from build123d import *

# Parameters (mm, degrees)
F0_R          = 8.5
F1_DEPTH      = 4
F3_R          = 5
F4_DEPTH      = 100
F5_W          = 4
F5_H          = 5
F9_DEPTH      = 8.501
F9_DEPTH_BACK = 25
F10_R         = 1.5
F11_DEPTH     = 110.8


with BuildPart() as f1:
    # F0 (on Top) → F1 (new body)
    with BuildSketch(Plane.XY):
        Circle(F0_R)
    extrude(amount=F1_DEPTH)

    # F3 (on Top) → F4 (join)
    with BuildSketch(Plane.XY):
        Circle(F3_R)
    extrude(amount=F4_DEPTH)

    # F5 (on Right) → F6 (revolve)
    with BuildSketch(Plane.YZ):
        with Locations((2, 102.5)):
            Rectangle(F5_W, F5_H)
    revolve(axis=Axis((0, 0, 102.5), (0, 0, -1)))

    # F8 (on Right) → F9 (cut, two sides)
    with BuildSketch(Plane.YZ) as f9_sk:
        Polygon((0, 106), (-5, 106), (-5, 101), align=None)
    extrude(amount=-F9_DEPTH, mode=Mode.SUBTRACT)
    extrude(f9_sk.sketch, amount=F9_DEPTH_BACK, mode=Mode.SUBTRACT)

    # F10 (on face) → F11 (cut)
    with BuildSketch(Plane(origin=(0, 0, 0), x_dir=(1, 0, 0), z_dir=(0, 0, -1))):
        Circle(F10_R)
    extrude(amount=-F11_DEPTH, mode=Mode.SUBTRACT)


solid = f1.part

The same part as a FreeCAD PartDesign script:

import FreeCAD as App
import Part
import Sketcher
from FreeCAD import Vector
Q = App.Units.Quantity

doc = App.newDocument("Part")
body = doc.addObject("PartDesign::Body", "Body")

sketch1 = body.newObject("Sketcher::SketchObject", "Sketch")
sketch1.AttachmentSupport = (doc.getObject("XY_Plane"), [""])
sketch1.MapMode = "FlatFace"
sketch1.addGeometry(Part.Circle(Vector(0, 0, 0), Vector(0, 0, 1), 8.5), False)
sketch1.addConstraint([
    Sketcher.Constraint("Coincident", 0, 3, -1, 1),
    Sketcher.Constraint("Diameter", 0, Q("17 mm")),
])
pad1 = body.newObject("PartDesign::Pad", "Pad")
pad1.Profile = sketch1
pad1.Length = 4

sketch2 = body.newObject("Sketcher::SketchObject", "Sketch001")
sketch2.AttachmentSupport = (doc.getObject("XY_Plane"), [""])
sketch2.MapMode = "FlatFace"
sketch2.addGeometry(Part.Circle(Vector(0, 0, 0), Vector(0, 0, 1), 5), False)
sketch2.addConstraint([
    Sketcher.Constraint("Coincident", 0, 3, -1, 1),
    Sketcher.Constraint("Diameter", 0, Q("10 mm")),
])
pad2 = body.newObject("PartDesign::Pad", "Pad001")
pad2.Profile = sketch2
pad2.Length = 100

sketch3 = body.newObject("Sketcher::SketchObject", "Sketch002")
sketch3.AttachmentSupport = (doc.getObject("YZ_Plane"), [""])
sketch3.MapMode = "FlatFace"
sketch3.addGeometry([
    Part.LineSegment(Vector(0, 105, 0), Vector(0, 100, 0)),
    Part.LineSegment(Vector(0, 100, 0), Vector(4, 100, 0)),
    Part.LineSegment(Vector(4, 100, 0), Vector(4, 105, 0)),
    Part.LineSegment(Vector(4, 105, 0), Vector(0, 105, 0)),
], False)
sketch3.addConstraint([
    Sketcher.Constraint("Coincident", 0, 2, 1, 1),
    Sketcher.Constraint("Coincident", 1, 2, 2, 1),
    Sketcher.Constraint("Coincident", 2, 2, 3, 1),
    Sketcher.Constraint("Coincident", 3, 2, 0, 1),
    Sketcher.Constraint("Vertical", 0),
    Sketcher.Constraint("Horizontal", 1),
    Sketcher.Constraint("Vertical", 2),
    Sketcher.Constraint("Horizontal", 3),
    Sketcher.Constraint("PointOnObject", 0, 2, -2),
    Sketcher.Constraint("DistanceX", 1, 1, 1, 2, Q("4 mm")),
    Sketcher.Constraint("DistanceY", 0, 2, 0, 1, Q("5 mm")),
    Sketcher.Constraint("DistanceY", -1, 1, 0, 2, Q("100 mm")),
])
revolution = body.newObject("PartDesign::Revolution", "Revolution")
revolution.Profile = sketch3
revolution.ReferenceAxis = (sketch3, ["V_Axis"])
revolution.Angle = 360

sketch4 = body.newObject("Sketcher::SketchObject", "Sketch003")
sketch4.AttachmentSupport = (doc.getObject("YZ_Plane"), [""])
sketch4.MapMode = "FlatFace"
sketch4.addGeometry([
    Part.LineSegment(Vector(0, 106, 0), Vector(-5, 106, 0)),
    Part.LineSegment(Vector(-5, 106, 0), Vector(-5, 101, 0)),
    Part.LineSegment(Vector(-5, 101, 0), Vector(0, 106, 0)),
], False)
sketch4.addConstraint([
    Sketcher.Constraint("Coincident", 0, 2, 1, 1),
    Sketcher.Constraint("Coincident", 1, 2, 2, 1),
    Sketcher.Constraint("Coincident", 2, 2, 0, 1),
    Sketcher.Constraint("Horizontal", 0),
    Sketcher.Constraint("Vertical", 1),
    Sketcher.Constraint("PointOnObject", 2, 2, -2),
    Sketcher.Constraint("Equal", 0, 1),
    Sketcher.Constraint("DistanceX", 0, 2, 0, 1, Q("5 mm")),
    Sketcher.Constraint("DistanceY", -1, 1, 0, 2, Q("106 mm")),
])
pocket1 = body.newObject("PartDesign::Pocket", "Pocket")
pocket1.Profile = sketch4
pocket1.Type = "ThroughAll"
pocket1.Midplane = True

sketch5 = body.newObject("Sketcher::SketchObject", "Sketch004")
sketch5.AttachmentSupport = (doc.getObject("XY_Plane"), [""])
sketch5.MapMode = "FlatFace"
sketch5.addGeometry(Part.Circle(Vector(0, 0, 0), Vector(0, 0, 1), 1.5), False)
sketch5.addConstraint([
    Sketcher.Constraint("Coincident", 0, 3, -1, 1),
    Sketcher.Constraint("Diameter", 0, Q("3 mm")),
])
pocket2 = body.newObject("PartDesign::Pocket", "Pocket001")
pocket2.Profile = sketch5
pocket2.Length = 110.8
pocket2.Reversed = True

doc.recompute()
